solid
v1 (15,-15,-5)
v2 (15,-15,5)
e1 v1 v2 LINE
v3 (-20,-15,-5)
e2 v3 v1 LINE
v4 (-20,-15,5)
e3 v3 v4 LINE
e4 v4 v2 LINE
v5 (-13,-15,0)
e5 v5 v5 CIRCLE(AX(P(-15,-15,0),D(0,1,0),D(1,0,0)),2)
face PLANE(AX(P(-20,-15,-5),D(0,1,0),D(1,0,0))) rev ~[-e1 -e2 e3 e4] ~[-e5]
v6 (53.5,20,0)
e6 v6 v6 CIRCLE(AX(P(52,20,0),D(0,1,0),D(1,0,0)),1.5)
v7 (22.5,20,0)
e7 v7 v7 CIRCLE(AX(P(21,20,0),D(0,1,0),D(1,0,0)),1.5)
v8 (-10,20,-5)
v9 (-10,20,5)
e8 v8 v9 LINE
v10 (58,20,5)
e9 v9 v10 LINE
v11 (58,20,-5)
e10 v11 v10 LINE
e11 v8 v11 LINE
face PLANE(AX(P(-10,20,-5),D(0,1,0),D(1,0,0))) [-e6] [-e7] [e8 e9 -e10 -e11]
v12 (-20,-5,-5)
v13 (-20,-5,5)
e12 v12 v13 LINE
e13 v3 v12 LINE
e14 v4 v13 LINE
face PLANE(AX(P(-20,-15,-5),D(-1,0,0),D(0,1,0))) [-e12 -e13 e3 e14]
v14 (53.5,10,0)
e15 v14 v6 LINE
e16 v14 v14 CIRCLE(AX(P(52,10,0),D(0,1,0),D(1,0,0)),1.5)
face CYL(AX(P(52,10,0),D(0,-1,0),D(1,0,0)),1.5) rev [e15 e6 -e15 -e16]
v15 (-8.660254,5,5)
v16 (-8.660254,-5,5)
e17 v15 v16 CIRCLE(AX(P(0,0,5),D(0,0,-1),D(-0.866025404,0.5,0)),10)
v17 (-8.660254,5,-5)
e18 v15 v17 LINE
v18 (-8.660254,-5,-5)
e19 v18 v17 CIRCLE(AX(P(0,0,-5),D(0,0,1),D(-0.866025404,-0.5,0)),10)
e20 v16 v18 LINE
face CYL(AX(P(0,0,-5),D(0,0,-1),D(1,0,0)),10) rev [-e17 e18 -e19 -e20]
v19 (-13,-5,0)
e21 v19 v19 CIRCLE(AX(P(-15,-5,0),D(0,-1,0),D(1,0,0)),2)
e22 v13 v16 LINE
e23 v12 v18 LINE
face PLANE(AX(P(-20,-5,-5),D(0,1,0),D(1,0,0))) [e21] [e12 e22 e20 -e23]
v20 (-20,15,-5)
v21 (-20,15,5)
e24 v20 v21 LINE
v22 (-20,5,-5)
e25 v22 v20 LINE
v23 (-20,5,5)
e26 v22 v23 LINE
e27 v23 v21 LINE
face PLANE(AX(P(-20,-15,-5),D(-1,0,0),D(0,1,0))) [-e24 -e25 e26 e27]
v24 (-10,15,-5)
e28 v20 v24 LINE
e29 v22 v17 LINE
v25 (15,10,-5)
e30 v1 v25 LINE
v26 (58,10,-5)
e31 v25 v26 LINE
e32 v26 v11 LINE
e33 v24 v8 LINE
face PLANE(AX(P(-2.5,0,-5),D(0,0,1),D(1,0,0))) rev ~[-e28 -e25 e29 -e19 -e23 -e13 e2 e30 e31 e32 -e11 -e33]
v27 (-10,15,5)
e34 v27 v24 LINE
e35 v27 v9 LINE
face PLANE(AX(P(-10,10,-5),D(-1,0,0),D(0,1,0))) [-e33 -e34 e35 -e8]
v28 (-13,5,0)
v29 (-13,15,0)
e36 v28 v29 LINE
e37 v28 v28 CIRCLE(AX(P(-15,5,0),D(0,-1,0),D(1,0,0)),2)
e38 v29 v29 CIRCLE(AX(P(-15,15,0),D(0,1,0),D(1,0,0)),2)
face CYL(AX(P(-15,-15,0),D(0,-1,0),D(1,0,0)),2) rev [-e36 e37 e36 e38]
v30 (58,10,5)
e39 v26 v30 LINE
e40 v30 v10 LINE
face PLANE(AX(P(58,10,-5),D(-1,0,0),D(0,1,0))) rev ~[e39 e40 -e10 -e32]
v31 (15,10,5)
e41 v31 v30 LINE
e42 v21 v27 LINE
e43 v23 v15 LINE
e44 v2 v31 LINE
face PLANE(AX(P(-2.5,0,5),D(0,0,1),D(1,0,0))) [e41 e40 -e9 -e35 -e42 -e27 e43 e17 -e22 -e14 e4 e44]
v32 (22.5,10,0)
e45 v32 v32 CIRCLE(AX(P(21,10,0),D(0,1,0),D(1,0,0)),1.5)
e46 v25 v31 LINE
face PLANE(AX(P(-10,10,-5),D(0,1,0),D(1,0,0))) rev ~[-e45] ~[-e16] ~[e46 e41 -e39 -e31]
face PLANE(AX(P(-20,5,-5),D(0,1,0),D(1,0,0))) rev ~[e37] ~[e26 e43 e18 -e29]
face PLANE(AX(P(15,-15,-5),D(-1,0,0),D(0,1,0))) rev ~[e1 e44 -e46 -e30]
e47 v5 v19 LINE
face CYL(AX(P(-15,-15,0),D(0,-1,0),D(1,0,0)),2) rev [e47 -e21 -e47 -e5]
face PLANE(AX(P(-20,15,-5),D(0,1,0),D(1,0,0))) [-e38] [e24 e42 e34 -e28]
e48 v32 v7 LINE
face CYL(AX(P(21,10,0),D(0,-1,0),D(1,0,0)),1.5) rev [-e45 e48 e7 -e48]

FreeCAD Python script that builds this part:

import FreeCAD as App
import Part
import Sketcher
Q = App.Units.Quantity

doc = App.newDocument("Part")
body = doc.addObject("PartDesign::Body", "Body")

# Sketch on XY plane
sketch1 = body.newObject("Sketcher::SketchObject", "Sketch")
sketch1.AttachmentSupport = (doc.getObject("XY_Plane"), [""])
sketch1.MapMode = "FlatFace"
sketch1.AttachmentOffset = App.Placement(App.Vector(0, 0, -5), App.Rotation())
sketch1.addGeometry(Part.Circle(App.Vector(0, 0, 0), App.Vector(0, 0, 1), 10), False)
sketch1.addConstraint([
    Sketcher.Constraint("Coincident", 0, 3, -1, 1),
    Sketcher.Constraint("Diameter", 0, Q("20 mm")),
])
pad1 = body.newObject("PartDesign::Pad", "Pad")
pad1.Profile = sketch1
pad1.Length = 10
body2 = doc.addObject("PartDesign::Body", "Body001")

# Sketch on XY plane
sketch2 = body2.newObject("Sketcher::SketchObject", "Sketch001")
sketch2.AttachmentSupport = (doc.getObject("XY_Plane001"), [""])
sketch2.MapMode = "FlatFace"
sketch2.addGeometry(Part.Circle(App.Vector(0, 0, 0), App.Vector(0, 0, 1), 2), False)
sketch2.addConstraint([
    Sketcher.Constraint("Coincident", 0, 3, -1, 1),
    Sketcher.Constraint("Diameter", 0, Q("4 mm")),
])
pad2 = body2.newObject("PartDesign::Pad", "Pad001")
pad2.Profile = sketch2
pad2.Length = 30
body3 = doc.addObject("PartDesign::Body", "Body002")
doc.recompute()

body2.Placement = App.Placement(App.Vector(0, 0, 0), App.Rotation(App.Vector(1, 0, 0), 270))
boolean = body3.newObject("PartDesign::Boolean", "Boolean")
boolean.Type = "Fuse"
boolean.addObjects([body2])
body4 = doc.addObject("PartDesign::Body", "Body003")
doc.recompute()

body3.Placement = App.Placement(App.Vector(-15, -15, 0), App.Rotation(App.Vector(0, 0, 1), 0))
boolean2 = body4.newObject("PartDesign::Boolean", "Boolean001")
boolean2.Type = "Fuse"
boolean2.addObjects([body3])
body5 = doc.addObject("PartDesign::Body", "Body004")

# Sketch on XY plane
sketch3 = body5.newObject("Sketcher::SketchObject", "Sketch002")
sketch3.AttachmentSupport = (doc.getObject("XY_Plane004"), [""])
sketch3.MapMode = "FlatFace"
sketch3.addGeometry(Part.Circle(App.Vector(0, 0, 0), App.Vector(0, 0, 1), 1.5), False)
sketch3.addConstraint([
    Sketcher.Constraint("Coincident", 0, 3, -1, 1),
    Sketcher.Constraint("Diameter", 0, Q("3 mm")),
])
pad3 = body5.newObject("PartDesign::Pad", "Pad002")
pad3.Profile = sketch3
pad3.Length = 10
body6 = doc.addObject("PartDesign::Body", "Body005")
doc.recompute()

body5.Placement = App.Placement(App.Vector(0, 0, 0), App.Rotation(App.Vector(1, 0, 0), 270))
boolean3 = body6.newObject("PartDesign::Boolean", "Boolean002")
boolean3.Type = "Fuse"
boolean3.addObjects([body5])
body7 = doc.addObject("PartDesign::Body", "Body006")
doc.recompute()

body6.Placement = App.Placement(App.Vector(52, 10, 0), App.Rotation(App.Vector(0, 0, 1), 0))
boolean4 = body7.newObject("PartDesign::Boolean", "Boolean003")
boolean4.Type = "Fuse"
boolean4.addObjects([body6])
body8 = doc.addObject("PartDesign::Body", "Body007")

# Sketch on XY plane
sketch4 = body8.newObject("Sketcher::SketchObject", "Sketch003")
sketch4.AttachmentSupport = (doc.getObject("XY_Plane007"), [""])
sketch4.MapMode = "FlatFace"
sketch4.addGeometry(Part.Circle(App.Vector(0, 0, 0), App.Vector(0, 0, 1), 1.5), False)
sketch4.addConstraint([
    Sketcher.Constraint("Coincident", 0, 3, -1, 1),
    Sketcher.Constraint("Diameter", 0, Q("3 mm")),
])
pad4 = body8.newObject("PartDesign::Pad", "Pad003")
pad4.Profile = sketch4
pad4.Length = 10
body9 = doc.addObject("PartDesign::Body", "Body008")
doc.recompute()

body8.Placement = App.Placement(App.Vector(0, 0, 0), App.Rotation(App.Vector(1, 0, 0), 270))
boolean5 = body9.newObject("PartDesign::Boolean", "Boolean004")
boolean5.Type = "Fuse"
boolean5.addObjects([body8])
body10 = doc.addObject("PartDesign::Body", "Body009")
doc.recompute()

body9.Placement = App.Placement(App.Vector(21, 10, 0), App.Rotation(App.Vector(0, 0, 1), 0))
boolean6 = body10.newObject("PartDesign::Boolean", "Boolean005")
boolean6.Type = "Fuse"
boolean6.addObjects([body9])
body11 = doc.addObject("PartDesign::Body", "Body010")
body11.AllowCompound = True

# Sketch on XY plane
sketch5 = body11.newObject("Sketcher::SketchObject", "Sketch004")
sketch5.AttachmentSupport = (doc.getObject("XY_Plane010"), [""])
sketch5.MapMode = "FlatFace"
sketch5.AttachmentOffset = App.Placement(App.Vector(0, 0, -5), App.Rotation())
sketch5.addGeometry([
    Part.LineSegment(App.Vector(-20, 5, 0), App.Vector(-20, -5, 0)),
    Part.LineSegment(App.Vector(-20, -5, 0), App.Vector(-5, -5, 0)),
    Part.LineSegment(App.Vector(-5, -5, 0), App.Vector(-5, 5, 0)),
    Part.LineSegment(App.Vector(-5, 5, 0), App.Vector(-20, 5, 0)),
], False)
sketch5.addConstraint([
    Sketcher.Constraint("Coincident", 0, 2, 1, 1),
    Sketcher.Constraint("Coincident", 1, 2, 2, 1),
    Sketcher.Constraint("Coincident", 2, 2, 3, 1),
    Sketcher.Constraint("Coincident", 3, 2, 0, 1),
    Sketcher.Constraint("Vertical", 0),
    Sketcher.Constraint("Horizontal", 1),
    Sketcher.Constraint("Vertical", 2),
    Sketcher.Constraint("Horizontal", 3),
    Sketcher.Constraint("DistanceX", 1, 1, 1, 2, Q("15 mm")),
    Sketcher.Constraint("DistanceY", 0, 2, 0, 1, Q("10 mm")),
    Sketcher.Constraint("DistanceX", 0, 2, -1, 1, Q("20 mm")),
    Sketcher.Constraint("DistanceY", 0, 2, -1, 1, Q("5 mm")),
])
pad5 = body11.newObject("PartDesign::Pad", "Pad004")
pad5.Profile = sketch5
pad5.Length = 10
doc.recompute()

boolean7 = body11.newObject("PartDesign::Boolean", "Boolean006")
boolean7.Type = "Fuse"
boolean7.addObjects([body])
doc.recompute()

boolean8 = body11.newObject("PartDesign::Boolean", "Boolean007")
boolean8.Type = "Fuse"
boolean8.addObjects([body4])
doc.recompute()

boolean9 = body11.newObject("PartDesign::Boolean", "Boolean008")
boolean9.Type = "Fuse"
boolean9.addObjects([body7])
doc.recompute()

boolean10 = body11.newObject("PartDesign::Boolean", "Boolean009")
boolean10.Type = "Fuse"
boolean10.addObjects([body10])
body12 = doc.addObject("PartDesign::Body", "Body011")

# Sketch on XY plane
sketch6 = body12.newObject("Sketcher::SketchObject", "Sketch005")
sketch6.AttachmentSupport = (doc.getObject("XY_Plane011"), [""])
sketch6.MapMode = "FlatFace"
sketch6.AttachmentOffset = App.Placement(App.Vector(0, 0, -5), App.Rotation())
sketch6.addGeometry([
    Part.LineSegment(App.Vector(-20, 15, 0), App.Vector(-20, -15, 0)),
    Part.LineSegment(App.Vector(-20, -15, 0), App.Vector(15, -15, 0)),
    Part.LineSegment(App.Vector(15, -15, 0), App.Vector(15, 15, 0)),
    Part.LineSegment(App.Vector(15, 15, 0), App.Vector(-20, 15, 0)),
], False)
sketch6.addConstraint([
    Sketcher.Constraint("Coincident", 0, 2, 1, 1),
    Sketcher.Constraint("Coincident", 1, 2, 2, 1),
    Sketcher.Constraint("Coincident", 2, 2, 3, 1),
    Sketcher.Constraint("Coincident", 3, 2, 0, 1),
    Sketcher.Constraint("Vertical", 0),
    Sketcher.Constraint("Horizontal", 1),
    Sketcher.Constraint("Vertical", 2),
    Sketcher.Constraint("Horizontal", 3),
    Sketcher.Constraint("DistanceX", 1, 1, 1, 2, Q("35 mm")),
    Sketcher.Constraint("DistanceY", 0, 2, 0, 1, Q("30 mm")),
    Sketcher.Constraint("DistanceX", 0, 2, -1, 1, Q("20 mm")),
    Sketcher.Constraint("DistanceY", 0, 2, -1, 1, Q("15 mm")),
])
pad6 = body12.newObject("PartDesign::Pad", "Pad005")
pad6.Profile = sketch6
pad6.Length = 10
body13 = doc.addObject("PartDesign::Body", "Body012")

# Sketch on XY plane
sketch7 = body13.newObject("Sketcher::SketchObject", "Sketch006")
sketch7.AttachmentSupport = (doc.getObject("XY_Plane012"), [""])
sketch7.MapMode = "FlatFace"
sketch7.AttachmentOffset = App.Placement(App.Vector(0, 0, -5), App.Rotation())
sketch7.addGeometry([
    Part.LineSegment(App.Vector(-10, 20, 0), App.Vector(-10, 10, 0)),
    Part.LineSegment(App.Vector(-10, 10, 0), App.Vector(58, 10, 0)),
    Part.LineSegment(App.Vector(58, 10, 0), App.Vector(58, 20, 0)),
    Part.LineSegment(App.Vector(58, 20, 0), App.Vector(-10, 20, 0)),
], False)
sketch7.addConstraint([
    Sketcher.Constraint("Coincident", 0, 2, 1, 1),
    Sketcher.Constraint("Coincident", 1, 2, 2, 1),
    Sketcher.Constraint("Coincident", 2, 2, 3, 1),
    Sketcher.Constraint("Coincident", 3, 2, 0, 1),
    Sketcher.Constraint("Vertical", 0),
    Sketcher.Constraint("Horizontal", 1),
    Sketcher.Constraint("Vertical", 2),
    Sketcher.Constraint("Horizontal", 3),
    Sketcher.Constraint("DistanceX", 1, 1, 1, 2, Q("68 mm")),
    Sketcher.Constraint("DistanceY", 0, 2, 0, 1, Q("10 mm")),
    Sketcher.Constraint("DistanceX", 0, 2, -1, 1, Q("10 mm")),
    Sketcher.Constraint("DistanceY", -1, 1, 0, 2, Q("10 mm")),
])
pad7 = body13.newObject("PartDesign::Pad", "Pad006")
pad7.Profile = sketch7
pad7.Length = 10
doc.recompute()

boolean11 = body13.newObject("PartDesign::Boolean", "Boolean010")
boolean11.Type = "Fuse"
boolean11.addObjects([body12])
doc.recompute()

boolean12 = body13.newObject("PartDesign::Boolean", "Boolean011")
boolean12.Type = "Cut"
boolean12.addObjects([body11])

doc.recompute()
